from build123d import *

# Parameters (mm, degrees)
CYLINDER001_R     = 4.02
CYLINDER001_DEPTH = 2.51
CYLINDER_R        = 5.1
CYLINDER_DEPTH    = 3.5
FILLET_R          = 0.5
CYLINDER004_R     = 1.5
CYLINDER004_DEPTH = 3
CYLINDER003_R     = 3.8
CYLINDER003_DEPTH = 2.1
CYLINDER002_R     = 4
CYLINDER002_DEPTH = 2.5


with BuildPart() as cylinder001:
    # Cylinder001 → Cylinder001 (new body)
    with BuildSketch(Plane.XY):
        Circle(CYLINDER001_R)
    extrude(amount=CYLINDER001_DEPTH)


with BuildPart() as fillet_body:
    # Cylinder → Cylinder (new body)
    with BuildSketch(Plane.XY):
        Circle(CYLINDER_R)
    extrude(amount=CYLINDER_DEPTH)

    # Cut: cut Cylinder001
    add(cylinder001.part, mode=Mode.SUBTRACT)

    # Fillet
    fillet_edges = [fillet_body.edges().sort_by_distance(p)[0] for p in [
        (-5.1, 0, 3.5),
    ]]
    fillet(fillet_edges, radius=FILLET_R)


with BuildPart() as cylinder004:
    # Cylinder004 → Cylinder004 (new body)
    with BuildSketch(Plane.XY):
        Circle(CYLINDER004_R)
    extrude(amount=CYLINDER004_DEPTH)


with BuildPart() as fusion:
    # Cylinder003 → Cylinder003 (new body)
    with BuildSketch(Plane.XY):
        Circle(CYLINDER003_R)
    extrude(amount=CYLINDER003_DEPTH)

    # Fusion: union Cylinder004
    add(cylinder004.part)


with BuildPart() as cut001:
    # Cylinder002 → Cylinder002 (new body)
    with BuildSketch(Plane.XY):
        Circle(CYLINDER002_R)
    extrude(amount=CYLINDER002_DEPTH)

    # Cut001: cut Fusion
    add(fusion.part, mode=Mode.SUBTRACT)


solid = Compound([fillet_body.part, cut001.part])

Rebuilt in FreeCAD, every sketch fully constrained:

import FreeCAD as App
import Part
import Sketcher


def edges_at(feature, points):
    """Names of the edges that pass closest to the given points."""
    edges = feature.Shape.Edges
    near = lambda p: min(range(len(edges)), key=lambda i: edges[i].distToShape(Part.Vertex(*p))[0])
    return sorted({f"Edge{near(p) + 1}" for p in points})

doc = App.newDocument("Part")
body = doc.addObject("PartDesign::Body", "Body")

# Sketch on XY plane
sketch1 = doc.addObject("Sketcher::SketchObject", "Sketch")
body.addObject(sketch1)
sketch1.AttachmentSupport = (doc.XY_Plane, [""])
sketch1.MapMode = "FlatFace"
sketch1.addGeometry(Part.Circle(App.Vector(0, 0, 0), App.Vector(0, 0, 1), 4.02), False)
sketch1.addConstraint([
    Sketcher.Constraint("Coincident", 0, 3, -1, 1),
    Sketcher.Constraint("Diameter", 0, 8.04),
])
pad1 = doc.addObject("PartDesign::Pad", "Pad")
body.addObject(pad1)
pad1.Profile = sketch1
pad1.Length = 2.51
body2 = doc.addObject("PartDesign::Body", "Body001")

# Sketch on XY plane
sketch2 = doc.addObject("Sketcher::SketchObject", "Sketch001")
body2.addObject(sketch2)
sketch2.AttachmentSupport = (doc.getObject("XY_Plane001"), [""])
sketch2.MapMode = "FlatFace"
sketch2.addGeometry(Part.Circle(App.Vector(0, 0, 0), App.Vector(0, 0, 1), 5.1), False)
sketch2.addConstraint([
    Sketcher.Constraint("Coincident", 0, 3, -1, 1),
    Sketcher.Constraint("Diameter", 0, 10.2),
])
pad2 = doc.addObject("PartDesign::Pad", "Pad001")
body2.addObject(pad2)
pad2.Profile = sketch2
pad2.Length = 3.5
doc.recompute()

boolean = doc.addObject("PartDesign::Boolean", "Boolean")
body2.addObject(boolean)
boolean.Type = "Cut"
boolean.addObjects([body])
doc.recompute()

fillet = doc.addObject("PartDesign::Fillet", "Fillet")
body2.addObject(fillet)
fillet.Base = (boolean, edges_at(boolean, [(-5.1, 0, 3.5)]))
fillet.Radius = 0.5
body3 = doc.addObject("PartDesign::Body", "Body002")

# Sketch on XY plane
sketch3 = doc.addObject("Sketcher::SketchObject", "Sketch002")
body3.addObject(sketch3)
sketch3.AttachmentSupport = (doc.getObject("XY_Plane002"), [""])
sketch3.MapMode = "FlatFace"
sketch3.addGeometry(Part.Circle(App.Vector(0, 0, 0), App.Vector(0, 0, 1), 1.5), False)
sketch3.addConstraint([
    Sketcher.Constraint("Coincident", 0, 3, -1, 1),
    Sketcher.Constraint("Diameter", 0, 3.0),
])
pad3 = doc.addObject("PartDesign::Pad", "Pad002")
body3.addObject(pad3)
pad3.Profile = sketch3
pad3.Length = 3
body4 = doc.addObject("PartDesign::Body", "Body003")

# Sketch on XY plane
sketch4 = doc.addObject("Sketcher::SketchObject", "Sketch003")
body4.addObject(sketch4)
sketch4.AttachmentSupport = (doc.getObject("XY_Plane003"), [""])
sketch4.MapMode = "FlatFace"
sketch4.addGeometry(Part.Circle(App.Vector(0, 0, 0), App.Vector(0, 0, 1), 3.8), False)
sketch4.addConstraint([
    Sketcher.Constraint("Coincident", 0, 3, -1, 1),
    Sketcher.Constraint("Diameter", 0, 7.6),
])
pad4 = doc.addObject("PartDesign::Pad", "Pad003")
body4.addObject(pad4)
pad4.Profile = sketch4
pad4.Length = 2.1
doc.recompute()

boolean2 = doc.addObject("PartDesign::Boolean", "Boolean001")
body4.addObject(boolean2)
boolean2.Type = "Fuse"
boolean2.addObjects([body3])
body5 = doc.addObject("PartDesign::Body", "Body004")

# Sketch on XY plane
sketch5 = doc.addObject("Sketcher::SketchObject", "Sketch004")
body5.addObject(sketch5)
sketch5.AttachmentSupport = (doc.getObject("XY_Plane004"), [""])
sketch5.MapMode = "FlatFace"
sketch5.addGeometry(Part.Circle(App.Vector(0, 0, 0), App.Vector(0, 0, 1), 4), False)
sketch5.addConstraint([
    Sketcher.Constraint("Coincident", 0, 3, -1, 1),
    Sketcher.Constraint("Diameter", 0, 8.0),
])
pad5 = doc.addObject("PartDesign::Pad", "Pad004")
body5.addObject(pad5)
pad5.Profile = sketch5
pad5.Length = 2.5
doc.recompute()

boolean3 = doc.addObject("PartDesign::Boolean", "Boolean002")
body5.addObject(boolean3)
boolean3.Type = "Cut"
boolean3.addObjects([body4])

doc.recompute()
